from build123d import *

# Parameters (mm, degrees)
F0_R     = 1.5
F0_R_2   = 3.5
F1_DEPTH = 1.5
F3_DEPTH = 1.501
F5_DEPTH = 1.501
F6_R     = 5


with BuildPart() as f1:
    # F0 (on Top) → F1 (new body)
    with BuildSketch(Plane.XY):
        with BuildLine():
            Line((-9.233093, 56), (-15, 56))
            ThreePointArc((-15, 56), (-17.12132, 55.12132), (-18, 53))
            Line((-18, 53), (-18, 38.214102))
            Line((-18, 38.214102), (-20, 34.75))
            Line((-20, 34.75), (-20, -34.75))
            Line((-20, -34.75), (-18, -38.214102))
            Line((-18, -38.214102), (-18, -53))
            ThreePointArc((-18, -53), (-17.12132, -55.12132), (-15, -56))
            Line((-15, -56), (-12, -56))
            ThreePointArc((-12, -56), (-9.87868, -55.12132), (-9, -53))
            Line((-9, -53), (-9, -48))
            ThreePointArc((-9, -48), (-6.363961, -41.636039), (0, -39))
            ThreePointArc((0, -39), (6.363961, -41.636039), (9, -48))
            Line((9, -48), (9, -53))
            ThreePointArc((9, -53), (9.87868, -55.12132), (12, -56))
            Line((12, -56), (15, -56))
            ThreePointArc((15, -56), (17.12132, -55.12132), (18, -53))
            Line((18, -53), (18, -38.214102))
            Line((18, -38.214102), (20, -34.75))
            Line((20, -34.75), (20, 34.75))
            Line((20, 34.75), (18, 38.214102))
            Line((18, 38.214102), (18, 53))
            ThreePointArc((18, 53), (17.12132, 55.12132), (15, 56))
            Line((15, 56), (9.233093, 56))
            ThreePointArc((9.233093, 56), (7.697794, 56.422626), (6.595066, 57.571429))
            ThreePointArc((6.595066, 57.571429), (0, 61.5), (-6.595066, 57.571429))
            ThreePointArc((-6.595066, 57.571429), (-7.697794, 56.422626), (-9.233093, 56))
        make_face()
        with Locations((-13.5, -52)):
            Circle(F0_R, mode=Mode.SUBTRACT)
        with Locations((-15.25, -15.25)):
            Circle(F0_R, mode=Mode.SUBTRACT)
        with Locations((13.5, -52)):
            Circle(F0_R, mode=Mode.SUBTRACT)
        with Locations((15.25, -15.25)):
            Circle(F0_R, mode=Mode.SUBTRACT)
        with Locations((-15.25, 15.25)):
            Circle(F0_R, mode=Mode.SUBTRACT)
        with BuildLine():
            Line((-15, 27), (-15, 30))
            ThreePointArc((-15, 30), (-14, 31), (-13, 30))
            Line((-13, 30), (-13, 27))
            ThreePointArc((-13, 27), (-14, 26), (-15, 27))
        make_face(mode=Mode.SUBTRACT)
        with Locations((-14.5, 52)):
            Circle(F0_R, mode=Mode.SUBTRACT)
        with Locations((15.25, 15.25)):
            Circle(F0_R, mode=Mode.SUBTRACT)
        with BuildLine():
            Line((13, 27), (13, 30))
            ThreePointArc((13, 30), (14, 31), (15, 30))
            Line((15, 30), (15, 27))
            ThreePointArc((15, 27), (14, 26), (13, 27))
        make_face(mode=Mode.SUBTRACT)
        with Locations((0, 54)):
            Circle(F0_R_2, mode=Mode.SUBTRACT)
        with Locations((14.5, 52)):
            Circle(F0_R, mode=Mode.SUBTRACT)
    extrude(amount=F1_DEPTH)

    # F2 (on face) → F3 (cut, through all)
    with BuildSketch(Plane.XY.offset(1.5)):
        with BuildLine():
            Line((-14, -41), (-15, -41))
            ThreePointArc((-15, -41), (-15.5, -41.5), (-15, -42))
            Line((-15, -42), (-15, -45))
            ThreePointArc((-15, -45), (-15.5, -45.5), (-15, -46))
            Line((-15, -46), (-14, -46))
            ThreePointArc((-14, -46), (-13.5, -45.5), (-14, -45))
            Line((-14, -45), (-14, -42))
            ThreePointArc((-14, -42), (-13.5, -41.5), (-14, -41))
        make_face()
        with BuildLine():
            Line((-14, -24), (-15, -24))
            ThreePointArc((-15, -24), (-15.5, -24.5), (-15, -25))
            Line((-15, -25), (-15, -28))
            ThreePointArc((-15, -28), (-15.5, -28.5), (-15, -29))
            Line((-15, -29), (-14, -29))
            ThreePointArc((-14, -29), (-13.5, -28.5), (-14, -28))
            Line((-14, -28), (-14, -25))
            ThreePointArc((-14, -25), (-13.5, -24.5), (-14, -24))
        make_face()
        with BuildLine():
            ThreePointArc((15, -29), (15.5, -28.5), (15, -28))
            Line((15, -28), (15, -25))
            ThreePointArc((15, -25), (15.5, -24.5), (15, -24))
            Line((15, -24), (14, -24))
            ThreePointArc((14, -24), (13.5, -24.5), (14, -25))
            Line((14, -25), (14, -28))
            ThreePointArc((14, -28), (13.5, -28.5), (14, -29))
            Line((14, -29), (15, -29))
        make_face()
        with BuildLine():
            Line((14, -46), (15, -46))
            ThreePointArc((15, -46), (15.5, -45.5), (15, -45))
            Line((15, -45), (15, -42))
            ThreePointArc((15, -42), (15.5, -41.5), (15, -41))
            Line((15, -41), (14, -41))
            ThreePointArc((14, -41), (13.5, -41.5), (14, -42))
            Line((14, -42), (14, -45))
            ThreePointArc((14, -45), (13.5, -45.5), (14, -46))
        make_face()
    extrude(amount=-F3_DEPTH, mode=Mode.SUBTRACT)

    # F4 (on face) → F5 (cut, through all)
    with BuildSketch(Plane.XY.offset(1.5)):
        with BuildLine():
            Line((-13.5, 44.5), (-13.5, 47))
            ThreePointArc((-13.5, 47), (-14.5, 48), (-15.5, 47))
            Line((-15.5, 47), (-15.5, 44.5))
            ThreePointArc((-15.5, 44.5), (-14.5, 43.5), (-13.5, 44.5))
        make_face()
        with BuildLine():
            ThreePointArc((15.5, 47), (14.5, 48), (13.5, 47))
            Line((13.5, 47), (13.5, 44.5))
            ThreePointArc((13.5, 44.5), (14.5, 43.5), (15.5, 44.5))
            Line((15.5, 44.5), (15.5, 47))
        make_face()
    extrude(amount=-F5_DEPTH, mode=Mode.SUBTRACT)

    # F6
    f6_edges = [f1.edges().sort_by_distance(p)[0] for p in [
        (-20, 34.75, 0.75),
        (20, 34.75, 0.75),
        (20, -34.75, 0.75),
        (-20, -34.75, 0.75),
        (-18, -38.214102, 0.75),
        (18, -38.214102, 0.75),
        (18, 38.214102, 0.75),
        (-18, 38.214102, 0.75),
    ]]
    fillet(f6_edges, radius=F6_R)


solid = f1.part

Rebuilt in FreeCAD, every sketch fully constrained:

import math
import FreeCAD as App
import Part
import Sketcher

V = App.Vector
Q = App.Units.Quantity


def edges_at(feature, points):
    """Names of the edges that pass closest to the given points."""
    edges = feature.Shape.Edges
    near = lambda p: min(range(len(edges)), key=lambda i: edges[i].distToShape(Part.Vertex(*p))[0])
    return sorted({f"Edge{near(p) + 1}" for p in points})

doc = App.newDocument("Part")
body = doc.addObject("PartDesign::Body", "Body")

# Sketch on XY plane
sketch1 = body.newObject("Sketcher::SketchObject", "Sketch")
sketch1.AttachmentSupport = (doc.getObject("XY_Plane"), [""])
sketch1.MapMode = "FlatFace"
sketch1.addGeometry(Part.LineSegment(V(-9.2, 56, 0), V(-15, 56, 0)), False)
sketch1.addGeometry(Part.ArcOfCircle(Part.Circle(V(-15, 53, 0), V(0, 0, 1), 3), math.radians(90), math.radians(180)), False)
sketch1.addGeometry(Part.LineSegment(V(-18, 53, 0), V(-18, 38.2, 0)), False)
sketch1.addGeometry(Part.LineSegment(V(-18, 38.2, 0), V(-20, 34.8, 0)), False)
sketch1.addGeometry(Part.LineSegment(V(-20, 34.8, 0), V(-20, -34.8, 0)), False)
sketch1.addGeometry(Part.LineSegment(V(-20, -34.8, 0), V(-18, -38.2, 0)), False)
sketch1.addGeometry(Part.LineSegment(V(-18, -38.2, 0), V(-18, -53, 0)), False)
sketch1.addGeometry(Part.ArcOfCircle(Part.Circle(V(-15, -53, 0), V(0, 0, 1), 3), math.radians(-180), math.radians(-90)), False)
sketch1.addGeometry(Part.LineSegment(V(-15, -56, 0), V(-12, -56, 0)), False)
sketch1.addGeometry(Part.ArcOfCircle(Part.Circle(V(-12, -53, 0), V(0, 0, 1), 3), math.radians(-90), math.radians(0)), False)
sketch1.addGeometry(Part.LineSegment(V(-9, -53, 0), V(-9, -48, 0)), False)
sketch1.addGeometry(Part.ArcOfCircle(Part.Circle(V(0, -48, 0), V(0, 0, 1), 9), math.radians(90), math.radians(180)), False)
sketch1.addGeometry(Part.ArcOfCircle(Part.Circle(V(0, -48, 0), V(0, 0, 1), 9), math.radians(0), math.radians(90)), False)
sketch1.addGeometry(Part.LineSegment(V(9, -48, 0), V(9, -53, 0)), False)
sketch1.addGeometry(Part.ArcOfCircle(Part.Circle(V(12, -53, 0), V(0, 0, 1), 3), math.radians(-180), math.radians(-90)), False)
sketch1.addGeometry(Part.LineSegment(V(12, -56, 0), V(15, -56, 0)), False)
sketch1.addGeometry(Part.ArcOfCircle(Part.Circle(V(15, -53, 0), V(0, 0, 1), 3), math.radians(-90), math.radians(0)), False)
sketch1.addGeometry(Part.LineSegment(V(18, -53, 0), V(18, -38.2, 0)), False)
sketch1.addGeometry(Part.LineSegment(V(18, -38.2, 0), V(20, -34.8, 0)), False)
sketch1.addGeometry(Part.LineSegment(V(20, -34.8, 0), V(20, 34.8, 0)), False)
sketch1.addGeometry(Part.LineSegment(V(20, 34.8, 0), V(18, 38.2, 0)), False)
sketch1.addGeometry(Part.LineSegment(V(18, 38.2, 0), V(18, 53, 0)), False)
sketch1.addGeometry(Part.ArcOfCircle(Part.Circle(V(15, 53, 0), V(0, 0, 1), 3), math.radians(0), math.radians(90)), False)
sketch1.addGeometry(Part.LineSegment(V(15, 56, 0), V(9.2, 56, 0)), False)
sketch1.addGeometry(Part.ArcOfCircle(Part.Circle(V(9.2, 59, 0), V(0, 0, 1), 3), math.radians(-152), math.radians(-90)), False)
sketch1.addGeometry(Part.ArcOfCircle(Part.Circle(V(0, 54, 0), V(0, 0, 1), 7.5), math.radians(28), math.radians(152)), False)
sketch1.addGeometry(Part.ArcOfCircle(Part.Circle(V(-9.2, 59, 0), V(0, 0, 1), 3), math.radians(-90), math.radians(-28)), False)
sketch1.addGeometry(Part.Circle(V(-13.5, -52, 0), V(0, 0, 1), 1.5), False)
sketch1.addGeometry(Part.Circle(V(-15.2, -15.2, 0), V(0, 0, 1), 1.5), False)
sketch1.addGeometry(Part.Circle(V(13.5, -52, 0), V(0, 0, 1), 1.5), False)
sketch1.addGeometry(Part.Circle(V(15.2, -15.2, 0), V(0, 0, 1), 1.5), False)
sketch1.addGeometry(Part.Circle(V(-15.2, 15.2, 0), V(0, 0, 1), 1.5), False)
sketch1.addGeometry(Part.ArcOfCircle(Part.Circle(V(-14, 27, 0), V(0, 0, 1), 1), math.radians(180), math.radians(360)), False)
sketch1.addGeometry(Part.LineSegment(V(-15, 27, 0), V(-15, 30, 0)), False)
sketch1.addGeometry(Part.ArcOfCircle(Part.Circle(V(-14, 30, 0), V(0, 0, 1), 1), math.radians(0), math.radians(180)), False)
sketch1.addGeometry(Part.LineSegment(V(-13, 30, 0), V(-13, 27, 0)), False)
sketch1.addGeometry(Part.Circle(V(-14.5, 52, 0), V(0, 0, 1), 1.5), False)
sketch1.addGeometry(Part.Circle(V(15.2, 15.2, 0), V(0, 0, 1), 1.5), False)
sketch1.addGeometry(Part.ArcOfCircle(Part.Circle(V(14, 27, 0), V(0, 0, 1), 1), math.radians(180), math.radians(360)), False)
sketch1.addGeometry(Part.LineSegment(V(13, 27, 0), V(13, 30, 0)), False)
sketch1.addGeometry(Part.ArcOfCircle(Part.Circle(V(14, 30, 0), V(0, 0, 1), 1), math.radians(0), math.radians(180)), False)
sketch1.addGeometry(Part.LineSegment(V(15, 30, 0), V(15, 27, 0)), False)
sketch1.addGeometry(Part.Circle(V(0, 54, 0), V(0, 0, 1), 3.5), False)
sketch1.addGeometry(Part.Circle(V(14.5, 52, 0), V(0, 0, 1), 1.5), False)
sketch1.addConstraint(Sketcher.Constraint("Tangent", 0, 2, 1, 1))
sketch1.addConstraint(Sketcher.Constraint("Tangent", 1, 2, 2, 1))
sketch1.addConstraint(Sketcher.Constraint("Coincident", 2, 2, 3, 1))
sketch1.addConstraint(Sketcher.Constraint("Coincident", 3, 2, 4, 1))
sketch1.addConstraint(Sketcher.Constraint("Coincident", 4, 2, 5, 1))
sketch1.addConstraint(Sketcher.Constraint("Coincident", 5, 2, 6, 1))
sketch1.addConstraint(Sketcher.Constraint("Tangent", 6, 2, 7, 1))
sketch1.addConstraint(Sketcher.Constraint("Tangent", 7, 2, 8, 1))
sketch1.addConstraint(Sketcher.Constraint("Tangent", 8, 2, 9, 1))
sketch1.addConstraint(Sketcher.Constraint("Tangent", 9, 2, 10, 1))
sketch1.addConstraint(Sketcher.Constraint("Tangent", 10, 2, 11, 2))
sketch1.addConstraint(Sketcher.Constraint("Tangent", 11, 1, 12, 2))
sketch1.addConstraint(Sketcher.Constraint("Tangent", 12, 1, 13, 1))
sketch1.addConstraint(Sketcher.Constraint("Tangent", 13, 2, 14, 1))
sketch1.addConstraint(Sketcher.Constraint("Tangent", 14, 2, 15, 1))
sketch1.addConstraint(Sketcher.Constraint("Tangent", 15, 2, 16, 1))
sketch1.addConstraint(Sketcher.Constraint("Tangent", 16, 2, 17, 1))
sketch1.addConstraint(Sketcher.Constraint("Coincident", 17, 2, 18, 1))
sketch1.addConstraint(Sketcher.Constraint("Coincident", 18, 2, 19, 1))
sketch1.addConstraint(Sketcher.Constraint("Coincident", 19, 2, 20, 1))
sketch1.addConstraint(Sketcher.Constraint("Coincident", 20, 2, 21, 1))
sketch1.addConstraint(Sketcher.Constraint("Tangent", 21, 2, 22, 1))
sketch1.addConstraint(Sketcher.Constraint("Tangent", 22, 2, 23, 1))
sketch1.addConstraint(Sketcher.Constraint("Tangent", 23, 2, 24, 2))
sketch1.addConstraint(Sketcher.Constraint("Tangent", 24, 1, 25, 1))
sketch1.addConstraint(Sketcher.Constraint("Tangent", 25, 2, 26, 2))
sketch1.addConstraint(Sketcher.Constraint("Tangent", 26, 1, 0, 1))
sketch1.addConstraint(Sketcher.Constraint("Tangent", 32, 1, 33, 1))
sketch1.addConstraint(Sketcher.Constraint("Tangent", 33, 2, 34, 2))
sketch1.addConstraint(Sketcher.Constraint("Tangent", 34, 1, 35, 1))
sketch1.addConstraint(Sketcher.Constraint("Tangent", 35, 2, 32, 2))
sketch1.addConstraint(Sketcher.Constraint("Tangent", 38, 1, 39, 1))
sketch1.addConstraint(Sketcher.Constraint("Tangent", 39, 2, 40, 2))
sketch1.addConstraint(Sketcher.Constraint("Tangent", 40, 1, 41, 1))
sketch1.addConstraint(Sketcher.Constraint("Tangent", 41, 2, 38, 2))
sketch1.addConstraint(Sketcher.Constraint("Horizontal", 0))
sketch1.addConstraint(Sketcher.Constraint("Vertical", 2))
sketch1.addConstraint(Sketcher.Constraint("Vertical", 4))
sketch1.addConstraint(Sketcher.Constraint("Vertical", 6))
sketch1.addConstraint(Sketcher.Constraint("Horizontal", 8))
sketch1.addConstraint(Sketcher.Constraint("Vertical", 10))
sketch1.addConstraint(Sketcher.Constraint("Vertical", 13))
sketch1.addConstraint(Sketcher.Constraint("Horizontal", 15))
sketch1.addConstraint(Sketcher.Constraint("Vertical", 17))
sketch1.addConstraint(Sketcher.Constraint("Vertical", 19))
sketch1.addConstraint(Sketcher.Constraint("Vertical", 21))
sketch1.addConstraint(Sketcher.Constraint("Horizontal", 23))
sketch1.addConstraint(Sketcher.Constraint("Vertical", 33))
sketch1.addConstraint(Sketcher.Constraint("Vertical", 35))
sketch1.addConstraint(Sketcher.Constraint("Vertical", 39))
sketch1.addConstraint(Sketcher.Constraint("Vertical", 41))
sketch1.addConstraint(Sketcher.Constraint("Coincident", 42, 3, 25, 3))
sketch1.addConstraint(Sketcher.Constraint("Equal", 1, 7))
sketch1.addConstraint(Sketcher.Constraint("Equal", 7, 9))
sketch1.addConstraint(Sketcher.Constraint("Equal", 11, 12))
sketch1.addConstraint(Sketcher.Constraint("Equal", 9, 14))
sketch1.addConstraint(Sketcher.Constraint("Equal", 14, 16))
sketch1.addConstraint(Sketcher.Constraint("Equal", 16, 22))
sketch1.addConstraint(Sketcher.Constraint("Equal", 22, 24))
sketch1.addConstraint(Sketcher.Constraint("Equal", 24, 26))
sketch1.addConstraint(Sketcher.Constraint("Equal", 27, 28))
sketch1.addConstraint(Sketcher.Constraint("Equal", 28, 29))
sketch1.addConstraint(Sketcher.Constraint("Equal", 29, 30))
sketch1.addConstraint(Sketcher.Constraint("Equal", 30, 31))
sketch1.addConstraint(Sketcher.Constraint("Equal", 31, 36))
sketch1.addConstraint(Sketcher.Constraint("Equal", 36, 37))
sketch1.addConstraint(Sketcher.Constraint("Equal", 34, 38))
sketch1.addConstraint(Sketcher.Constraint("Equal", 37, 43))
sketch1.addConstraint(Sketcher.Constraint("Symmetric", 1, 3, 16, 3, -1, 1))
sketch1.addConstraint(Sketcher.Constraint("Symmetric", 7, 3, 22, 3, -1, 1))
sketch1.addConstraint(Sketcher.Constraint("Symmetric", 30, 3, 31, 3, -1, 1))
sketch1.addConstraint(Sketcher.Constraint("Symmetric", 28, 3, 37, 3, -1, 1))
sketch1.addConstraint(Sketcher.Constraint("Symmetric", 3, 2, 18, 2, -1, 1))
sketch1.addConstraint(Sketcher.Constraint("Symmetric", 9, 3, 14, 3, -2))
sketch1.addConstraint(Sketcher.Constraint("Symmetric", 27, 3, 29, 3, -2))
sketch1.addConstraint(Sketcher.Constraint("Symmetric", 28, 3, 30, 3, -2))
sketch1.addConstraint(Sketcher.Constraint("Symmetric", 32, 3, 38, 3, -2))
sketch1.addConstraint(Sketcher.Constraint("Symmetric", 36, 3, 43, 3, -2))
sketch1.addConstraint(Sketcher.Constraint("Symmetric", 5, 2, 17, 2, -2))
sketch1.addConstraint(Sketcher.Constraint("PointOnObject", 25, 3, -2))
sketch1.addConstraint(Sketcher.Constraint("PointOnObject", 11, 1, -2))
sketch1.addConstraint(Sketcher.Constraint("Parallel", 3, 18))
sketch1.addConstraint(Sketcher.Constraint("Parallel", 5, 20))
sketch1.addConstraint(Sketcher.Constraint("Horizontal", 34, 3, 40, 3))
sketch1.addConstraint(Sketcher.Constraint("Horizontal", 4, 2, 18, 2))
sketch1.addConstraint(Sketcher.Constraint("Horizontal", 3, 2, 19, 2))
sketch1.addConstraint(Sketcher.Constraint("Vertical", 7, 2, 32, 1))
sketch1.addConstraint(Sketcher.Constraint("Equal", 15, 33))
sketch1.addConstraint(Sketcher.Constraint("Diameter", 27, 3.0))
sketch1.addConstraint(Sketcher.Constraint("Diameter", 42, 7.0))
sketch1.addConstraint(Sketcher.Constraint("Radius", 1, 3.000001))
sketch1.addConstraint(Sketcher.Constraint("Radius", 11, 9.0))
sketch1.addConstraint(Sketcher.Constraint("Radius", 32, 1.0))
sketch1.addConstraint(Sketcher.Constraint("Radius", 25, 7.5))
sketch1.addConstraint(Sketcher.Constraint("DistanceX", 8, 1, 8, 2, 3.0))
sketch1.addConstraint(Sketcher.Constraint("DistanceY", 10, 1, 10, 2, 5.0))
sketch1.addConstraint(Sketcher.Constraint("Angle", 3, Q("-119.999997 deg")))
sketch1.addConstraint(Sketcher.Constraint("Distance", 3, 4.0))
sketch1.addConstraint(Sketcher.Constraint("DistanceY", 4, 2, 4, 1, 69.5))
sketch1.addConstraint(Sketcher.Constraint("DistanceY", -1, 1, 1, 3, 52.999999))
sketch1.addConstraint(Sketcher.Constraint("DistanceY", -1, 1, 25, 3, 54.0))
sketch1.addConstraint(Sketcher.Constraint("DistanceY", 27, 3, -1, 1, 52.0))
sketch1.addConstraint(Sketcher.Constraint("DistanceY", -1, 1, 32, 3, 27.0))
sketch1.addConstraint(Sketcher.Constraint("DistanceY", -1, 1, 36, 3, 52.0))
sketch1.addConstraint(Sketcher.Constraint("DistanceX", 27, 3, -1, 1, 13.5))
sketch1.addConstraint(Sketcher.Constraint("DistanceX", 36, 3, -1, 1, 14.5))
sketch1.addConstraint(Sketcher.Constraint("DistanceX", 28, 3, 30, 3, 30.5))
sketch1.addConstraint(Sketcher.Constraint("DistanceY", 28, 3, 31, 3, 30.5))
pad1 = body.newObject("PartDesign::Pad", "Pad")
pad1.Profile = sketch1
pad1.Length = 1.5

# Sketch on XY plane
sketch2 = body.newObject("Sketcher::SketchObject", "Sketch001")
sketch2.AttachmentSupport = (doc.getObject("XY_Plane"), [""])
sketch2.MapMode = "FlatFace"
sketch2.AttachmentOffset = App.Placement(V(0, 0, 1.5), App.Rotation())
sketch2.addGeometry(Part.LineSegment(V(-14, -41, 0), V(-15, -41, 0)), False)
sketch2.addGeometry(Part.ArcOfCircle(Part.Circle(V(-15, -41.5, 0), V(0, 0, 1), 0.5), math.radians(90), math.radians(270)), False)
sketch2.addGeometry(Part.LineSegment(V(-15, -42, 0), V(-15, -45, 0)), False)
sketch2.addGeometry(Part.ArcOfCircle(Part.Circle(V(-15, -45.5, 0), V(0, 0, 1), 0.5), math.radians(90), math.radians(270)), False)
sketch2.addGeometry(Part.LineSegment(V(-15, -46, 0), V(-14, -46, 0)), False)
sketch2.addGeometry(Part.ArcOfCircle(Part.Circle(V(-14, -45.5, 0), V(0, 0, 1), 0.5), math.radians(-90), math.radians(90)), False)
sketch2.addGeometry(Part.LineSegment(V(-14, -45, 0), V(-14, -42, 0)), False)
sketch2.addGeometry(Part.ArcOfCircle(Part.Circle(V(-14, -41.5, 0), V(0, 0, 1), 0.5), math.radians(-90), math.radians(90)), False)
sketch2.addGeometry(Part.LineSegment(V(-14, -24, 0), V(-15, -24, 0)), False)
sketch2.addGeometry(Part.ArcOfCircle(Part.Circle(V(-15, -24.5, 0), V(0, 0, 1), 0.5), math.radians(90), math.radians(270)), False)
sketch2.addGeometry(Part.LineSegment(V(-15, -25, 0), V(-15, -28, 0)), False)
sketch2.addGeometry(Part.ArcOfCircle(Part.Circle(V(-15, -28.5, 0), V(0, 0, 1), 0.5), math.radians(90), math.radians(270)), False)
sketch2.addGeometry(Part.LineSegment(V(-15, -29, 0), V(-14, -29, 0)), False)
sketch2.addGeometry(Part.ArcOfCircle(Part.Circle(V(-14, -28.5, 0), V(0, 0, 1), 0.5), math.radians(-90), math.radians(90)), False)
sketch2.addGeometry(Part.LineSegment(V(-14, -28, 0), V(-14, -25, 0)), False)
sketch2.addGeometry(Part.ArcOfCircle(Part.Circle(V(-14, -24.5, 0), V(0, 0, 1), 0.5), math.radians(-90), math.radians(90)), False)
sketch2.addGeometry(Part.ArcOfCircle(Part.Circle(V(15, -28.5, 0), V(0, 0, 1), 0.5), math.radians(-90), math.radians(90)), False)
sketch2.addGeometry(Part.LineSegment(V(15, -28, 0), V(15, -25, 0)), False)
sketch2.addGeometry(Part.ArcOfCircle(Part.Circle(V(15, -24.5, 0), V(0, 0, 1), 0.5), math.radians(-90), math.radians(90)), False)
sketch2.addGeometry(Part.LineSegment(V(15, -24, 0), V(14, -24, 0)), False)
sketch2.addGeometry(Part.ArcOfCircle(Part.Circle(V(14, -24.5, 0), V(0, 0, 1), 0.5), math.radians(90), math.radians(270)), False)
sketch2.addGeometry(Part.LineSegment(V(14, -25, 0), V(14, -28, 0)), False)
sketch2.addGeometry(Part.ArcOfCircle(Part.Circle(V(14, -28.5, 0), V(0, 0, 1), 0.5), math.radians(90), math.radians(270)), False)
sketch2.addGeometry(Part.LineSegment(V(14, -29, 0), V(15, -29, 0)), False)
sketch2.addGeometry(Part.LineSegment(V(14, -46, 0), V(15, -46, 0)), False)
sketch2.addGeometry(Part.ArcOfCircle(Part.Circle(V(15, -45.5, 0), V(0, 0, 1), 0.5), math.radians(-90), math.radians(90)), False)
sketch2.addGeometry(Part.LineSegment(V(15, -45, 0), V(15, -42, 0)), False)
sketch2.addGeometry(Part.ArcOfCircle(Part.Circle(V(15, -41.5, 0), V(0, 0, 1), 0.5), math.radians(-90), math.radians(90)), False)
sketch2.addGeometry(Part.LineSegment(V(15, -41, 0), V(14, -41, 0)), False)
sketch2.addGeometry(Part.ArcOfCircle(Part.Circle(V(14, -41.5, 0), V(0, 0, 1), 0.5), math.radians(90), math.radians(270)), False)
sketch2.addGeometry(Part.LineSegment(V(14, -42, 0), V(14, -45, 0)), False)
sketch2.addGeometry(Part.ArcOfCircle(Part.Circle(V(14, -45.5, 0), V(0, 0, 1), 0.5), math.radians(90), math.radians(270)), False)
sketch2.addConstraint(Sketcher.Constraint("Tangent", 0, 2, 1, 1))
sketch2.addConstraint(Sketcher.Constraint("Coincident", 1, 2, 2, 1))
sketch2.addConstraint(Sketcher.Constraint("Coincident", 2, 2, 3, 1))
sketch2.addConstraint(Sketcher.Constraint("Tangent", 3, 2, 4, 1))
sketch2.addConstraint(Sketcher.Constraint("Tangent", 4, 2, 5, 1))
sketch2.addConstraint(Sketcher.Constraint("Coincident", 5, 2, 6, 1))
sketch2.addConstraint(Sketcher.Constraint("Coincident", 6, 2, 7, 1))
sketch2.addConstraint(Sketcher.Constraint("Tangent", 7, 2, 0, 1))
sketch2.addConstraint(Sketcher.Constraint("Tangent", 8, 2, 9, 1))
sketch2.addConstraint(Sketcher.Constraint("Coincident", 9, 2, 10, 1))
sketch2.addConstraint(Sketcher.Constraint("Coincident", 10, 2, 11, 1))
sketch2.addConstraint(Sketcher.Constraint("Tangent", 11, 2, 12, 1))
sketch2.addConstraint(Sketcher.Constraint("Tangent", 12, 2, 13, 1))
sketch2.addConstraint(Sketcher.Constraint("Coincident", 13, 2, 14, 1))
sketch2.addConstraint(Sketcher.Constraint("Coincident", 14, 2, 15, 1))
sketch2.addConstraint(Sketcher.Constraint("Tangent", 15, 2, 8, 1))
sketch2.addConstraint(Sketcher.Constraint("Coincident", 16, 2, 17, 1))
sketch2.addConstraint(Sketcher.Constraint("Coincident", 17, 2, 18, 1))
sketch2.addConstraint(Sketcher.Constraint("Tangent", 18, 2, 19, 1))
sketch2.addConstraint(Sketcher.Constraint("Tangent", 19, 2, 20, 1))
sketch2.addConstraint(Sketcher.Constraint("Coincident", 20, 2, 21, 1))
sketch2.addConstraint(Sketcher.Constraint("Coincident", 21, 2, 22, 1))
sketch2.addConstraint(Sketcher.Constraint("Tangent", 22, 2, 23, 1))
sketch2.addConstraint(Sketcher.Constraint("Tangent", 23, 2, 16, 1))
sketch2.addConstraint(Sketcher.Constraint("Tangent", 24, 2, 25, 1))
sketch2.addConstraint(Sketcher.Constraint("Coincident", 25, 2, 26, 1))
sketch2.addConstraint(Sketcher.Constraint("Coincident", 26, 2, 27, 1))
sketch2.addConstraint(Sketcher.Constraint("Tangent", 27, 2, 28, 1))
sketch2.addConstraint(Sketcher.Constraint("Tangent", 28, 2, 29, 1))
sketch2.addConstraint(Sketcher.Constraint("Coincident", 29, 2, 30, 1))
sketch2.addConstraint(Sketcher.Constraint("Coincident", 30, 2, 31, 1))
sketch2.addConstraint(Sketcher.Constraint("Tangent", 31, 2, 24, 1))
sketch2.addConstraint(Sketcher.Constraint("Horizontal", 0))
sketch2.addConstraint(Sketcher.Constraint("Vertical", 2))
sketch2.addConstraint(Sketcher.Constraint("Horizontal", 4))
sketch2.addConstraint(Sketcher.Constraint("Vertical", 6))
sketch2.addConstraint(Sketcher.Constraint("Horizontal", 8))
sketch2.addConstraint(Sketcher.Constraint("Vertical", 10))
sketch2.addConstraint(Sketcher.Constraint("Horizontal", 12))
sketch2.addConstraint(Sketcher.Constraint("Vertical", 14))
sketch2.addConstraint(Sketcher.Constraint("Vertical", 17))
sketch2.addConstraint(Sketcher.Constraint("Horizontal", 19))
sketch2.addConstraint(Sketcher.Constraint("Vertical", 21))
sketch2.addConstraint(Sketcher.Constraint("Horizontal", 23))
sketch2.addConstraint(Sketcher.Constraint("Horizontal", 24))
sketch2.addConstraint(Sketcher.Constraint("Vertical", 26))
sketch2.addConstraint(Sketcher.Constraint("Horizontal", 28))
sketch2.addConstraint(Sketcher.Constraint("Vertical", 30))
sketch2.addConstraint(Sketcher.Constraint("Equal", 1, 3))
sketch2.addConstraint(Sketcher.Constraint("Equal", 3, 5))
sketch2.addConstraint(Sketcher.Constraint("Equal", 5, 7))
sketch2.addConstraint(Sketcher.Constraint("Equal", 7, 9))
sketch2.addConstraint(Sketcher.Constraint("Equal", 9, 11))
sketch2.addConstraint(Sketcher.Constraint("Equal", 11, 13))
sketch2.addConstraint(Sketcher.Constraint("Equal", 13, 15))
sketch2.addConstraint(Sketcher.Constraint("Equal", 15, 16))
sketch2.addConstraint(Sketcher.Constraint("Equal", 16, 18))
sketch2.addConstraint(Sketcher.Constraint("Equal", 18, 20))
sketch2.addConstraint(Sketcher.Constraint("Equal", 20, 22))
sketch2.addConstraint(Sketcher.Constraint("Equal", 22, 25))
sketch2.addConstraint(Sketcher.Constraint("Equal", 25, 27))
sketch2.addConstraint(Sketcher.Constraint("Equal", 27, 29))
sketch2.addConstraint(Sketcher.Constraint("Equal", 29, 31))
sketch2.addConstraint(Sketcher.Constraint("Symmetric", 11, 3, 16, 3, -2))
sketch2.addConstraint(Sketcher.Constraint("Symmetric", 9, 3, 18, 3, -2))
sketch2.addConstraint(Sketcher.Constraint("Symmetric", 3, 3, 25, 3, -2))
sketch2.addConstraint(Sketcher.Constraint("Symmetric", 1, 3, 27, 3, -2))
sketch2.addConstraint(Sketcher.Constraint("Vertical", 1, 3, 3, 3))
sketch2.addConstraint(Sketcher.Constraint("Vertical", 5, 3, 7, 3))
sketch2.addConstraint(Sketcher.Constraint("Vertical", 3, 3, 9, 3))
sketch2.addConstraint(Sketcher.Constraint("Vertical", 9, 3, 11, 3))
sketch2.addConstraint(Sketcher.Constraint("Vertical", 7, 3, 13, 3))
sketch2.addConstraint(Sketcher.Constraint("Vertical", 13, 3, 15, 3))
sketch2.addConstraint(Sketcher.Constraint("Vertical", 20, 3, 22, 3))
sketch2.addConstraint(Sketcher.Constraint("Vertical", 22, 3, 29, 3))
sketch2.addConstraint(Sketcher.Constraint("Vertical", 29, 3, 31, 3))
sketch2.addConstraint(Sketcher.Constraint("Vertical", 0, 2, 1, 2))
sketch2.addConstraint(Sketcher.Constraint("Vertical", 4, 2, 5, 2))
sketch2.addConstraint(Sketcher.Constraint("Vertical", 8, 2, 9, 2))
sketch2.addConstraint(Sketcher.Constraint("Vertical", 12, 2, 13, 2))
sketch2.addConstraint(Sketcher.Constraint("Vertical", 27, 3, 16, 2))
sketch2.addConstraint(Sketcher.Constraint("Vertical", 19, 2, 20, 2))
sketch2.addConstraint(Sketcher.Constraint("Vertical", 24, 2, 25, 2))
sketch2.addConstraint(Sketcher.Constraint("Vertical", 28, 2, 29, 2))
sketch2.addConstraint(Sketcher.Constraint("Equal", 12, 19))
sketch2.addConstraint(Sketcher.Constraint("Equal", 6, 10))
sketch2.addConstraint(Sketcher.Constraint("Radius", 1, 0.5))
sketch2.addConstraint(Sketcher.Constraint("DistanceX", 0, 2, 0, 1, 1.0))
sketch2.addConstraint(Sketcher.Constraint("DistanceY", 2, 2, 2, 1, 3.0))
sketch2.addConstraint(Sketcher.Constraint("DistanceX", 1, 3, -1, 1, 15.0))
sketch2.addConstraint(Sketcher.Constraint("DistanceY", 0, 2, -1, 1, 41.0))
sketch2.addConstraint(Sketcher.Constraint("DistanceY", 8, 2, -1, 1, 24.0))
pocket1 = body.newObject("PartDesign::Pocket", "Pocket")
pocket1.Profile = sketch2
pocket1.Type = "ThroughAll"

# Sketch on XY plane
sketch3 = body.newObject("Sketcher::SketchObject", "Sketch002")
sketch3.AttachmentSupport = (doc.getObject("XY_Plane"), [""])
sketch3.MapMode = "FlatFace"
sketch3.AttachmentOffset = App.Placement(V(0, 0, 1.5), App.Rotation())
sketch3.addGeometry(Part.LineSegment(V(-13.5, 44.5, 0), V(-13.5, 47, 0)), False)
sketch3.addGeometry(Part.ArcOfCircle(Part.Circle(V(-14.5, 47, 0), V(0, 0, 1), 1), math.radians(0), math.radians(180)), False)
sketch3.addGeometry(Part.LineSegment(V(-15.5, 47, 0), V(-15.5, 44.5, 0)), False)
sketch3.addGeometry(Part.ArcOfCircle(Part.Circle(V(-14.5, 44.5, 0), V(0, 0, 1), 1), math.radians(180), math.radians(360)), False)
sketch3.addGeometry(Part.ArcOfCircle(Part.Circle(V(14.5, 47, 0), V(0, 0, 1), 1), math.radians(0), math.radians(180)), False)
sketch3.addGeometry(Part.LineSegment(V(13.5, 47, 0), V(13.5, 44.5, 0)), False)
sketch3.addGeometry(Part.ArcOfCircle(Part.Circle(V(14.5, 44.5, 0), V(0, 0, 1), 1), math.radians(180), math.radians(360)), False)
sketch3.addGeometry(Part.LineSegment(V(15.5, 44.5, 0), V(15.5, 47, 0)), False)
sketch3.addConstraint(Sketcher.Constraint("Tangent", 0, 2, 1, 1))
sketch3.addConstraint(Sketcher.Constraint("Tangent", 1, 2, 2, 1))
sketch3.addConstraint(Sketcher.Constraint("Tangent", 2, 2, 3, 1))
sketch3.addConstraint(Sketcher.Constraint("Tangent", 3, 2, 0, 1))
sketch3.addConstraint(Sketcher.Constraint("Tangent", 4, 2, 5, 1))
sketch3.addConstraint(Sketcher.Constraint("Tangent", 5, 2, 6, 1))
sketch3.addConstraint(Sketcher.Constraint("Tangent", 6, 2, 7, 1))
sketch3.addConstraint(Sketcher.Constraint("Tangent", 7, 2, 4, 1))
sketch3.addConstraint(Sketcher.Constraint("Vertical", 0))
sketch3.addConstraint(Sketcher.Constraint("Vertical", 2))
sketch3.addConstraint(Sketcher.Constraint("Vertical", 5))
sketch3.addConstraint(Sketcher.Constraint("Vertical", 7))
sketch3.addConstraint(Sketcher.Constraint("Equal", 3, 4))
sketch3.addConstraint(Sketcher.Constraint("Symmetric", 1, 3, 4, 3, -2))
sketch3.addConstraint(Sketcher.Constraint("Horizontal", 3, 3, 6, 3))
sketch3.addConstraint(Sketcher.Constraint("Radius", 1, 1.0))
sketch3.addConstraint(Sketcher.Constraint("DistanceY", 0, 1, 0, 2, 2.5))
sketch3.addConstraint(Sketcher.Constraint("DistanceY", -1, 1, 1, 3, 47.0))
sketch3.addConstraint(Sketcher.Constraint("DistanceX", 1, 3, 4, 3, 29.0))
pocket2 = body.newObject("PartDesign::Pocket", "Pocket001")
pocket2.Profile = sketch3
pocket2.Type = "ThroughAll"
doc.recompute()

fillet = body.newObject("PartDesign::Fillet", "Fillet")
fillet.Base = (pocket2, edges_at(pocket2, [
    (-20, 34.75, 0.75),
    (20, 34.75, 0.75),
    (20, -34.75, 0.75),
    (-20, -34.75, 0.75),
    (-18, -38.214, 0.75),
    (18, -38.214, 0.75),
    (18, 38.214, 0.75),
    (-18, 38.214, 0.75),
]))
fillet.Radius = 5

doc.recompute()
